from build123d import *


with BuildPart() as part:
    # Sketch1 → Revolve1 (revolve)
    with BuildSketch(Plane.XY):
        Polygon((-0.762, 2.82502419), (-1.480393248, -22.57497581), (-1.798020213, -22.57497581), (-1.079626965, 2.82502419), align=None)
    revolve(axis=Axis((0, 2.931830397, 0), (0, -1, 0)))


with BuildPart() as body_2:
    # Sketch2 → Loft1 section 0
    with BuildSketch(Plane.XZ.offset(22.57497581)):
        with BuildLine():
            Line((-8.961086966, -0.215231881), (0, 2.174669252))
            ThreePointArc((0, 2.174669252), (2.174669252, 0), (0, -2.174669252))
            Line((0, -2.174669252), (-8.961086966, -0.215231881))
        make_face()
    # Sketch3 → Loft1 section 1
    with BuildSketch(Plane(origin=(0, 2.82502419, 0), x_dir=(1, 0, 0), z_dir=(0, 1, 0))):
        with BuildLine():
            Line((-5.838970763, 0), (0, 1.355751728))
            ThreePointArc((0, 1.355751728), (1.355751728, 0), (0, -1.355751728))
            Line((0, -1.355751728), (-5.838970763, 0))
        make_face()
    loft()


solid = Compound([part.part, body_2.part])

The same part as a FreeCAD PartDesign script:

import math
import FreeCAD as App
import Part
import Sketcher

V = App.Vector


def add_polygon(sketch, points):
    """Adds a closed chain of lines whose ends are joined by coincident constraints."""
    first, n = sketch.GeometryCount, len(points)
    for a, b in zip(points, points[1:] + points[:1]):
        sketch.addGeometry(Part.LineSegment(App.Vector(*a, 0), App.Vector(*b, 0)), False)
    for i in range(n):
        sketch.addConstraint(Sketcher.Constraint("Coincident", first + i, 2, first + (i + 1) % n, 1))

doc = App.newDocument("Part")
params = doc.addObject("Spreadsheet::Sheet", "Params")
for row, (alias, value) in enumerate([
    ("revolution_angle", "360 deg"),
], start=1):
    params.set(f"A{row}", alias)
    params.set(f"B{row}", "=" + value)
    params.setAlias(f"B{row}", alias)

body = doc.addObject("PartDesign::Body", "Body")

sketch1 = body.newObject("Sketcher::SketchObject", "Sketch")
sketch1.AttachmentSupport = (doc.getObject("XY_Plane"), [""])
sketch1.MapMode = "FlatFace"
add_polygon(sketch1, [(-1.480393, -22.574976), (-0.762, 2.825024), (-1.079627, 2.825024), (-1.79802, -22.574976)])
sketch1.addConstraint(Sketcher.Constraint("Horizontal", 1))
sketch1.addConstraint(Sketcher.Constraint("Horizontal", 3))
sketch1.addConstraint(Sketcher.Constraint("Parallel", 0, 2))
sketch1.addConstraint(Sketcher.Constraint("DistanceY", 2, 2, 1, 2, 25.4))
sketch1.addConstraint(Sketcher.Constraint("DistanceX", 0, 2, -1, 1, 0.762))
sketch1.addConstraint(Sketcher.Constraint("DistanceX", 1, 2, 1, 1, 0.317627))
sketch1.addConstraint(Sketcher.Constraint("DistanceX", 2, 2, -1, 1, 1.79802))
sketch1.addConstraint(Sketcher.Constraint("DistanceY", -1, 1, 0, 2, 2.825024))
revolution = body.newObject("PartDesign::Revolution", "Revolution")
revolution.Profile = sketch1
revolution.ReferenceAxis = (sketch1, ["V_Axis"])
revolution.setExpression("Angle", "Params.revolution_angle")
body2 = doc.addObject("PartDesign::Body", "Body001")

sketch2 = body2.newObject("Sketcher::SketchObject", "Sketch001")
sketch2.AttachmentSupport = (doc.getObject("XZ_Plane001"), [""])
sketch2.MapMode = "FlatFace"
sketch2.AttachmentOffset = App.Placement(V(0, 0, 22.574976), App.Rotation())
sketch2.addGeometry(Part.LineSegment(V(0, 2.174669, 0), V(-8.961087, -0.215232, 0)), False)
sketch2.addGeometry(Part.LineSegment(V(-8.961087, -0.215232, 0), V(0, -2.174669, 0)), False)
sketch2.addGeometry(Part.ArcOfCircle(Part.Circle(V(0, 0, 0), V(0, 0, 1), 2.174669), math.radians(-90), math.radians(90)), False)
sketch2.addConstraint(Sketcher.Constraint("Coincident", 0, 2, 1, 1))
sketch2.addConstraint(Sketcher.Constraint("Coincident", 1, 2, 2, 1))
sketch2.addConstraint(Sketcher.Constraint("Coincident", 2, 2, 0, 1))
sketch2.addConstraint(Sketcher.Constraint("Coincident", 2, 3, -1, 1))
sketch2.addConstraint(Sketcher.Constraint("PointOnObject", 1, 2, -2))
sketch2.addConstraint(Sketcher.Constraint("PointOnObject", 2, 2, -2))
sketch2.addConstraint(Sketcher.Constraint("Radius", 2, 2.174669))
sketch2.addConstraint(Sketcher.Constraint("DistanceY", 0, 2, 2, 2, 2.389901))
sketch2.addConstraint(Sketcher.Constraint("Distance", 1, 9.172812))

sketch3 = body2.newObject("Sketcher::SketchObject", "Sketch002")
sketch3.AttachmentSupport = (doc.getObject("XZ_Plane001"), [""])
sketch3.MapMode = "FlatFace"
sketch3.AttachmentOffset = App.Placement(V(0, 0, -2.825024), App.Rotation())
sketch3.addGeometry(Part.LineSegment(V(0, -1.355752, 0), V(-5.838971, 0, 0)), False)
sketch3.addGeometry(Part.LineSegment(V(-5.838971, 0, 0), V(0, 1.355752, 0)), False)
sketch3.addGeometry(Part.ArcOfCircle(Part.Circle(V(0, 0, 0), V(0, 0, 1), 1.355752), math.radians(-90), math.radians(90)), False)
sketch3.addConstraint(Sketcher.Constraint("Coincident", 0, 2, 1, 1))
sketch3.addConstraint(Sketcher.Constraint("Coincident", 1, 2, 2, 2))
sketch3.addConstraint(Sketcher.Constraint("Coincident", 2, 1, 0, 1))
sketch3.addConstraint(Sketcher.Constraint("Coincident", 2, 3, -1, 1))
sketch3.addConstraint(Sketcher.Constraint("PointOnObject", 0, 2, -1))
sketch3.addConstraint(Sketcher.Constraint("PointOnObject", 1, 2, -2))
sketch3.addConstraint(Sketcher.Constraint("PointOnObject", 2, 1, -2))
sketch3.addConstraint(Sketcher.Constraint("Radius", 2, 1.355752))
sketch3.addConstraint(Sketcher.Constraint("Distance", 0, 5.994301))

additiveloft = body2.newObject("PartDesign::AdditiveLoft", "AdditiveLoft")
additiveloft.Profile = sketch2
additiveloft.Sections = [sketch3]

doc.recompute()
